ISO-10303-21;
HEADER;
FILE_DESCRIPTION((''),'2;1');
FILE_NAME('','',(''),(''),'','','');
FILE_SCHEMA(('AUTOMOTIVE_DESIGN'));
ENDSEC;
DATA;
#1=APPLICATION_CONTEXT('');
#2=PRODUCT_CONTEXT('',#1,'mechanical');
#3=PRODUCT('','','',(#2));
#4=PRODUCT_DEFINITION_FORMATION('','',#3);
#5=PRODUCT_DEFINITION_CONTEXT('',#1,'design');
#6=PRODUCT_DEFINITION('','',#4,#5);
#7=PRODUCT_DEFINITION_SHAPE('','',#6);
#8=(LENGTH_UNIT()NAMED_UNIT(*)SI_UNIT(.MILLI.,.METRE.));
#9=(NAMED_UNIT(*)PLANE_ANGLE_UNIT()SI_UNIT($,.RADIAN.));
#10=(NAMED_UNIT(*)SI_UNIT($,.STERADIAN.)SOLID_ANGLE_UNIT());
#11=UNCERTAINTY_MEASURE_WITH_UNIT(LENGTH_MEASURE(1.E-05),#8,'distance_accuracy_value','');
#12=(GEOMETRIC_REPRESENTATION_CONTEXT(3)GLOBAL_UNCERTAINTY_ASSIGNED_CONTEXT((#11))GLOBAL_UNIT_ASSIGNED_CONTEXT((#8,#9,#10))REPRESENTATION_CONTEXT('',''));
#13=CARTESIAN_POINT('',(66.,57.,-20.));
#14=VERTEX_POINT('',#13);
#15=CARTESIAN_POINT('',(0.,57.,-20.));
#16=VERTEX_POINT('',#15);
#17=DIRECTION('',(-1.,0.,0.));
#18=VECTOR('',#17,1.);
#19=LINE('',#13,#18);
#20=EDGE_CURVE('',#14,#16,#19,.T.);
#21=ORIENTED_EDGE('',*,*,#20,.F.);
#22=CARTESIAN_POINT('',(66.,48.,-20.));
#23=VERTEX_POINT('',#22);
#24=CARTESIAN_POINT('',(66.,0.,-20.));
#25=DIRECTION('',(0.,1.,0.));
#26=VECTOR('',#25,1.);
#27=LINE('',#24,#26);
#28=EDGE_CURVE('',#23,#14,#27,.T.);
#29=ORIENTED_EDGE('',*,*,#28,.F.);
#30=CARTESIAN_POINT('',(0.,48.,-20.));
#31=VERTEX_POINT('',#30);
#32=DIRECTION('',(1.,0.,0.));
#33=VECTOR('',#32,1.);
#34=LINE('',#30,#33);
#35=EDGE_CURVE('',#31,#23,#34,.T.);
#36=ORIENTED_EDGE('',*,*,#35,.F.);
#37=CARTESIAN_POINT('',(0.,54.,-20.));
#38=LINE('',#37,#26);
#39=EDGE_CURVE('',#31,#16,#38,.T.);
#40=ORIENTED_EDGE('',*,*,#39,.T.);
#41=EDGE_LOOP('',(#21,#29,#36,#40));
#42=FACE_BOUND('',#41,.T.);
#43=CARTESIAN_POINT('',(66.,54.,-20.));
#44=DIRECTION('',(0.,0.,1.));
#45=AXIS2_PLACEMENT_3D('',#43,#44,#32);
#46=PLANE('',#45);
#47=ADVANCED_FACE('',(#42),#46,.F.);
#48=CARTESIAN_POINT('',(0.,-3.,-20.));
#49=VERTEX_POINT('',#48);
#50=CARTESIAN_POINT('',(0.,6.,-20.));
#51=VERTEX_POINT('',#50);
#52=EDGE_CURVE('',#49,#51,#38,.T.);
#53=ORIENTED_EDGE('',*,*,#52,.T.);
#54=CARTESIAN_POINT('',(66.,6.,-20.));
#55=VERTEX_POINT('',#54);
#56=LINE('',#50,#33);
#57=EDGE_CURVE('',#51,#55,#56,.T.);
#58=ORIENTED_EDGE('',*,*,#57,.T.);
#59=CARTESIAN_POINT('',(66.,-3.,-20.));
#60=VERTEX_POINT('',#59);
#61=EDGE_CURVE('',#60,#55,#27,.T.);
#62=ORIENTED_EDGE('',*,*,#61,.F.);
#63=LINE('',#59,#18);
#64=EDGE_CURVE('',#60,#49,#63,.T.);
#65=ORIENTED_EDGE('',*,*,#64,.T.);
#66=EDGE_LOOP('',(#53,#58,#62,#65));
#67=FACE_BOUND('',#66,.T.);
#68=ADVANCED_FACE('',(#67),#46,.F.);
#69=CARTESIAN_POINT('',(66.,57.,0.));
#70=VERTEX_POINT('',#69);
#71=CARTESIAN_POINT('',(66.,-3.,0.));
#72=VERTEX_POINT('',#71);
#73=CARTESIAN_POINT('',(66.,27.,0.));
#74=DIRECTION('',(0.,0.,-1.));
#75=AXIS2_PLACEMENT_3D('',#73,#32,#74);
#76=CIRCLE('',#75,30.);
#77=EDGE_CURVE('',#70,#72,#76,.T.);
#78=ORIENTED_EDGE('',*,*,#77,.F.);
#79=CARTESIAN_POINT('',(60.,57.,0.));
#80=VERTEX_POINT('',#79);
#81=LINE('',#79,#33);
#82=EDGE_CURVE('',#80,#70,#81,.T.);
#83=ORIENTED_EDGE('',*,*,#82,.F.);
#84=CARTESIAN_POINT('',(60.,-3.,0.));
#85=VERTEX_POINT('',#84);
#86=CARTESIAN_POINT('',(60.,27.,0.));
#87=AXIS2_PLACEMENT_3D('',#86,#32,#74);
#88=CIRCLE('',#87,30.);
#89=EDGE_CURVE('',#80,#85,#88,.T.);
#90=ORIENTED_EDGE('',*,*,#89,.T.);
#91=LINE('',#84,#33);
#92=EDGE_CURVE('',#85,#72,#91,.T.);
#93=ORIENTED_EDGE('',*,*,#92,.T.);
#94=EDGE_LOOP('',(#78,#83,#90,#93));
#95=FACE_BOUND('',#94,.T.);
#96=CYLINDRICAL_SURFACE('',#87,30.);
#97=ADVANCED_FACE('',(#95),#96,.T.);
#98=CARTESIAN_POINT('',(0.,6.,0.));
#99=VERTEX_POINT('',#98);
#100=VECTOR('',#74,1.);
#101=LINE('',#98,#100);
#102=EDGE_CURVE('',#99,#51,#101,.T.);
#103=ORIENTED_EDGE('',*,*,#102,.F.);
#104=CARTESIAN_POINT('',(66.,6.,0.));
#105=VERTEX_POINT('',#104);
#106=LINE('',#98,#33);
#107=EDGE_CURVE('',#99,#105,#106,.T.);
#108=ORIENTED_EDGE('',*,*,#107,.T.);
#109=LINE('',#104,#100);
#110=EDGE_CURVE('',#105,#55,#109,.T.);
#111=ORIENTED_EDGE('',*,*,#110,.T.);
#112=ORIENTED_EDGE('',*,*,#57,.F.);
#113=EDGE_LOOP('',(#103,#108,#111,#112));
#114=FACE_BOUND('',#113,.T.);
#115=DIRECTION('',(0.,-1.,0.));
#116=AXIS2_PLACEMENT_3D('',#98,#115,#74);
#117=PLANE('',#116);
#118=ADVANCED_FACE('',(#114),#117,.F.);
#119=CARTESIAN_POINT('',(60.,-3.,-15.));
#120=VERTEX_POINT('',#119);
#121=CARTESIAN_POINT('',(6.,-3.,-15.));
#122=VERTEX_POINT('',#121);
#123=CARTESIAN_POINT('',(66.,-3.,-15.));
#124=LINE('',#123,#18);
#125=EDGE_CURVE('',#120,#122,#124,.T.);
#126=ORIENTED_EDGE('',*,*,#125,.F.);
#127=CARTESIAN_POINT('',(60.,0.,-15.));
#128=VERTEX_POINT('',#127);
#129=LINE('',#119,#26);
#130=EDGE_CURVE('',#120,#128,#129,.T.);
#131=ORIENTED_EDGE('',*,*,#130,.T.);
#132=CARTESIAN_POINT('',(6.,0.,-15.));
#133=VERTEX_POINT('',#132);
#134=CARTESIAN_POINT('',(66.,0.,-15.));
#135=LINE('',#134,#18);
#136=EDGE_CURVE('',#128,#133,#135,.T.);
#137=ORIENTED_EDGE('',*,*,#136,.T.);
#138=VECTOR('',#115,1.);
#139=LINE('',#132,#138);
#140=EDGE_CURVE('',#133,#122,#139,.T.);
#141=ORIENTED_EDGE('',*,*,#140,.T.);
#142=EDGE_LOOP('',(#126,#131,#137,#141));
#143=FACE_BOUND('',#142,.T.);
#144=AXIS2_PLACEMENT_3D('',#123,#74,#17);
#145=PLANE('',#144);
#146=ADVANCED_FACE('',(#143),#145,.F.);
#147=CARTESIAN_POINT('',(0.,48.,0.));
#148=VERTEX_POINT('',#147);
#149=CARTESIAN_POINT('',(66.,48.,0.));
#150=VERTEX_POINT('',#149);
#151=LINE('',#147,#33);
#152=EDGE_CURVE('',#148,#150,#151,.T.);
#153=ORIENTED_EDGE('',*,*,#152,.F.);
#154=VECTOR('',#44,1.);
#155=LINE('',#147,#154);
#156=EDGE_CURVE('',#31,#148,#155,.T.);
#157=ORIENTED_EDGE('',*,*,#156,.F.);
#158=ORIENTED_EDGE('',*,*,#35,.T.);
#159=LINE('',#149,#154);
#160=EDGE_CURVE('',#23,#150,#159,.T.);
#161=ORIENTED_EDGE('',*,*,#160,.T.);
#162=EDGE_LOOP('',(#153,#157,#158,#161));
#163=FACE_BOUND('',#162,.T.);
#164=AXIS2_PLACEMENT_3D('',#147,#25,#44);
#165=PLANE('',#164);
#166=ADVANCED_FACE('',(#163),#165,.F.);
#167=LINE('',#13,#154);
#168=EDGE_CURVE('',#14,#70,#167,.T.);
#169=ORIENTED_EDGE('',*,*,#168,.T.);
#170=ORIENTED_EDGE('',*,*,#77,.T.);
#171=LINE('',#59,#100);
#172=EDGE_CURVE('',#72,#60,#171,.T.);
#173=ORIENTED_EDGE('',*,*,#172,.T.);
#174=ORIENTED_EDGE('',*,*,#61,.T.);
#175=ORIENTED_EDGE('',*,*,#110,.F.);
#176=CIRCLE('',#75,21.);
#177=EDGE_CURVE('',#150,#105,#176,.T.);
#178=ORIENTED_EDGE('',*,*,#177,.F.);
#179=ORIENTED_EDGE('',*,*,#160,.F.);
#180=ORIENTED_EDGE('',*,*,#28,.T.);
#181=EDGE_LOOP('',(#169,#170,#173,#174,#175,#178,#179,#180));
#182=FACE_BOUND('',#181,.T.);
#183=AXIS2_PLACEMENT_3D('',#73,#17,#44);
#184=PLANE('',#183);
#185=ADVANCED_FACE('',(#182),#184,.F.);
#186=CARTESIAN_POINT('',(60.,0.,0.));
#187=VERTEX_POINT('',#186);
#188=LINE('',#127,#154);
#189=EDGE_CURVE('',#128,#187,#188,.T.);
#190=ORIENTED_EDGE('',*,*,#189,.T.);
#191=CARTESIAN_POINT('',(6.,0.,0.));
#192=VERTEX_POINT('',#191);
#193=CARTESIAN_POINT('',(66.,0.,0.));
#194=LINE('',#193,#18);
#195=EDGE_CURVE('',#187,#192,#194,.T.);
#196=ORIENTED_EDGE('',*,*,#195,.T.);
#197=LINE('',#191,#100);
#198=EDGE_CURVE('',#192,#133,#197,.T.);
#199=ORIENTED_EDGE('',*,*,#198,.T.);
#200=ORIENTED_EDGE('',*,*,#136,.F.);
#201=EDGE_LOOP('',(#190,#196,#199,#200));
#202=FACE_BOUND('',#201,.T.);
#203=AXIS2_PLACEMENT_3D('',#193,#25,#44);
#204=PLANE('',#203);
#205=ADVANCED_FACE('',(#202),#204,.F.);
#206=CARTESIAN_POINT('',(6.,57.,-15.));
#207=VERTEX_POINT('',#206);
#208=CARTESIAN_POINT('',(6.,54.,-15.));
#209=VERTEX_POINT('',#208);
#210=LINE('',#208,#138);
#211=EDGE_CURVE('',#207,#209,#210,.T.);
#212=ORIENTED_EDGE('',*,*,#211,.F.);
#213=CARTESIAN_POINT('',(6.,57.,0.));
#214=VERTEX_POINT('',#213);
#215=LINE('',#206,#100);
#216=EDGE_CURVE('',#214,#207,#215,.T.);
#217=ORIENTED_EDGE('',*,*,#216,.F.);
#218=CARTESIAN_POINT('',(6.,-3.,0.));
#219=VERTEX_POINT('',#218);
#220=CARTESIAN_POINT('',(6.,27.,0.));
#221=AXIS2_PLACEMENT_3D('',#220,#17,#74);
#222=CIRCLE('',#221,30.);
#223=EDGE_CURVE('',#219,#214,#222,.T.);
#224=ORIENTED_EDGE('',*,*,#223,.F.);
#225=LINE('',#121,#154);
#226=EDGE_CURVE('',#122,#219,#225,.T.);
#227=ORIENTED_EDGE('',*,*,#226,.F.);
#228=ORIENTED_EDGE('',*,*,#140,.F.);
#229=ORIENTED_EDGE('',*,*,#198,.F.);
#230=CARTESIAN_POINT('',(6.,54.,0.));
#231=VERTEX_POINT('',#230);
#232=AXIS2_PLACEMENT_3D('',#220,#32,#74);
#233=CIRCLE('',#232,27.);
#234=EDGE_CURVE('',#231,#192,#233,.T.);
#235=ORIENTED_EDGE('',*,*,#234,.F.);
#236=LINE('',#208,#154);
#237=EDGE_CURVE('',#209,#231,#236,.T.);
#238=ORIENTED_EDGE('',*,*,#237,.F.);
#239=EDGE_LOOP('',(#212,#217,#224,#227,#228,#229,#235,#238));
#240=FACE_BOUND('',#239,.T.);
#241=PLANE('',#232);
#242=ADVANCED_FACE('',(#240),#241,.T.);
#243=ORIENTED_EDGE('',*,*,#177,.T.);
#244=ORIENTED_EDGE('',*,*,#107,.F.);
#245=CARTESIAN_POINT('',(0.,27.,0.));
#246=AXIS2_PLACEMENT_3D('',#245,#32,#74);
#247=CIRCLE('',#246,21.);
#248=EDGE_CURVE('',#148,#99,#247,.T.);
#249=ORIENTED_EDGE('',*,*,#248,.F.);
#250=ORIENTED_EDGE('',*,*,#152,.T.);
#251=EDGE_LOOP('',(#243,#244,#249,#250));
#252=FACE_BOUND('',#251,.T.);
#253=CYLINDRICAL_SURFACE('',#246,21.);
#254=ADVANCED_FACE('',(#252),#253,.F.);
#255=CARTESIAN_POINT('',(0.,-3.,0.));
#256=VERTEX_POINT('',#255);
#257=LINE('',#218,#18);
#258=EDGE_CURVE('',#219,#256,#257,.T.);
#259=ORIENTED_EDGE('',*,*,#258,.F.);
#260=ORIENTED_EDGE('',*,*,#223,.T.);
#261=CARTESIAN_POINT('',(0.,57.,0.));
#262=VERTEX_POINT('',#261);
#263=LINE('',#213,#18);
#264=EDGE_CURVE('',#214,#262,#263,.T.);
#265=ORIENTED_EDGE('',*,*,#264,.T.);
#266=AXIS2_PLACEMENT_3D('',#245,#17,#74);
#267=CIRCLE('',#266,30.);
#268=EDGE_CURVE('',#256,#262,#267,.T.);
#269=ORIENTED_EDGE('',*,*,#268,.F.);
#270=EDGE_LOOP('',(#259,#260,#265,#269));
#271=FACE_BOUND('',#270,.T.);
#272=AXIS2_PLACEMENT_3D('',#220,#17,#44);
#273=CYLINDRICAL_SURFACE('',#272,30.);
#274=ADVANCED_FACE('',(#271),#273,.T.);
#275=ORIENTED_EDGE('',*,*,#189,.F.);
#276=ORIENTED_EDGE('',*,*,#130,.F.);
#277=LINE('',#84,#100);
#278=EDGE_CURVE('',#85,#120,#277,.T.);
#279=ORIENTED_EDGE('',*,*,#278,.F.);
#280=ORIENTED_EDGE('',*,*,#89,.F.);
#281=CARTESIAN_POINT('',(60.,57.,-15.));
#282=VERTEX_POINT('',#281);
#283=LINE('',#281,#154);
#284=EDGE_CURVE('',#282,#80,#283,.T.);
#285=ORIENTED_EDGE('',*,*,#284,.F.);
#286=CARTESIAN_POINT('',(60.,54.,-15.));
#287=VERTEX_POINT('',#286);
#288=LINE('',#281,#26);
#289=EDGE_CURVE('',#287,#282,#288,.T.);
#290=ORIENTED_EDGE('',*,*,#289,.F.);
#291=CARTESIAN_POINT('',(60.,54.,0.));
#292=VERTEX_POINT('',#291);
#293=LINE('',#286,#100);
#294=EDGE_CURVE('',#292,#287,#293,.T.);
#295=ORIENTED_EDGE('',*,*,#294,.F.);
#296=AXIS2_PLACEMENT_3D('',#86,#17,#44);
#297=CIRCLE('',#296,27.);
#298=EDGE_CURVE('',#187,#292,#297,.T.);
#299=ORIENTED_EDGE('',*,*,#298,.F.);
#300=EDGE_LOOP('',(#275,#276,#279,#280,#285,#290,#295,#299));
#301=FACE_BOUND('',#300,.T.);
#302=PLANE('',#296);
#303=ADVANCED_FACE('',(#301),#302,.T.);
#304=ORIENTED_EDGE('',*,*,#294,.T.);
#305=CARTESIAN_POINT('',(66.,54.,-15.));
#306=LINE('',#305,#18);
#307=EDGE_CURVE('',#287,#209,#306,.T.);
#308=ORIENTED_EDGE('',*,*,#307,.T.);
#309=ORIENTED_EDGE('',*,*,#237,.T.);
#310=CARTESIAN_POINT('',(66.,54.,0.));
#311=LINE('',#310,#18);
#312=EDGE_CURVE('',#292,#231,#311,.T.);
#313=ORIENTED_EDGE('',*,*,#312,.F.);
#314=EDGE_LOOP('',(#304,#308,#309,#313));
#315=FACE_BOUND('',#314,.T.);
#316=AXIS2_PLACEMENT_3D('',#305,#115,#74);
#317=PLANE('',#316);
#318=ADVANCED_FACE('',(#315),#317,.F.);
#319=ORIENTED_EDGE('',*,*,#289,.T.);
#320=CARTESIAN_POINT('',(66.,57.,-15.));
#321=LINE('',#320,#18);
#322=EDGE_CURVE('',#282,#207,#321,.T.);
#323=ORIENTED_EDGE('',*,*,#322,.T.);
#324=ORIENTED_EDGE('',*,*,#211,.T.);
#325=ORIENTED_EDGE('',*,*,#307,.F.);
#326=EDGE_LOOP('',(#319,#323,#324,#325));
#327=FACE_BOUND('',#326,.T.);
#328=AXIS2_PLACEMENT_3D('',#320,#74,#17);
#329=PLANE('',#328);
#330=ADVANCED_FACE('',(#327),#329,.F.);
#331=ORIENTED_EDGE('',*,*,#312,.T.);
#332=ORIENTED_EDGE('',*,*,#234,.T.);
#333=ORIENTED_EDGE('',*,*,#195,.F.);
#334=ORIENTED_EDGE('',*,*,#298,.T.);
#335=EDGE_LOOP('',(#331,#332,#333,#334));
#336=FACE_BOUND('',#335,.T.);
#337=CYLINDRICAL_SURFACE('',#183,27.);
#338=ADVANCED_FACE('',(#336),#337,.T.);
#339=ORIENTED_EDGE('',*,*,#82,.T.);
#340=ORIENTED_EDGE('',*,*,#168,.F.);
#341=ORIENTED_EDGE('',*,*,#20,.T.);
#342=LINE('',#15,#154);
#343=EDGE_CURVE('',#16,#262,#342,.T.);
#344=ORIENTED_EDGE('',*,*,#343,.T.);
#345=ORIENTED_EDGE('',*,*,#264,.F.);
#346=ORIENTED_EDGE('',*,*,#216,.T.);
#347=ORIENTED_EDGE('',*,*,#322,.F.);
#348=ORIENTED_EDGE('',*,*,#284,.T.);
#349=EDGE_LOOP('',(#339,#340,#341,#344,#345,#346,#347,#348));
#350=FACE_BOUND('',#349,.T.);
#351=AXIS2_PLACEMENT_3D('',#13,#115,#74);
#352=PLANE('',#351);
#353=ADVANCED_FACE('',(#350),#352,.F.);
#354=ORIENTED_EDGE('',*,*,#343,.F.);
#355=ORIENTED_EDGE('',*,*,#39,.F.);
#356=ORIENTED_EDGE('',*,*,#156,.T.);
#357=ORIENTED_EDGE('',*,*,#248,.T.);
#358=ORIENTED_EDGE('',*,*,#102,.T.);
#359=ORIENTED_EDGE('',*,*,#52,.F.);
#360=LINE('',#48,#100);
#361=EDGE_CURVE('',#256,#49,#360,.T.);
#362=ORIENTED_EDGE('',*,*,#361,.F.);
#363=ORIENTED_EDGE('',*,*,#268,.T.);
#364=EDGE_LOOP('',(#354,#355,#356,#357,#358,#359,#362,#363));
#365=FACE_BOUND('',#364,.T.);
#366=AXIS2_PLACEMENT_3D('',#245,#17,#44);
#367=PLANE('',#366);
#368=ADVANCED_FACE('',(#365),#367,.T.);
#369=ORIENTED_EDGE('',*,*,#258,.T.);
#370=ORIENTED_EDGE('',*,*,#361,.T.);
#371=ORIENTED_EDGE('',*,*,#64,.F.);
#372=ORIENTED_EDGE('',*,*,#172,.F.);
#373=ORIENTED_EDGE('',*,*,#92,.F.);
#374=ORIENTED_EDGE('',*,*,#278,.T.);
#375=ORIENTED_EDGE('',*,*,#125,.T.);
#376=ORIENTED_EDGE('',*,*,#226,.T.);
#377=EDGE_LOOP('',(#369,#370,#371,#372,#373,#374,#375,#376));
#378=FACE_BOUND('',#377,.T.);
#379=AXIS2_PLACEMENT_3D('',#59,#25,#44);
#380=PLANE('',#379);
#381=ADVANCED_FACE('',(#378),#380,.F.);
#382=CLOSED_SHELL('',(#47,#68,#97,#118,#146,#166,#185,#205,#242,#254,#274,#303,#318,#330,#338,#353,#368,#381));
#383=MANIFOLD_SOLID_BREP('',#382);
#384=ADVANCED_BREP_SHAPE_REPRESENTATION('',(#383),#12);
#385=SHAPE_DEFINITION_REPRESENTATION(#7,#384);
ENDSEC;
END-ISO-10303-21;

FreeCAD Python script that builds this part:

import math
import FreeCAD as App
import Part
import Sketcher
Q = App.Units.Quantity

doc = App.newDocument("Part")
body = doc.addObject("PartDesign::Body", "Body")

# Sketch on YZ plane
sketch1 = body.newObject("Sketcher::SketchObject", "Sketch")
sketch1.AttachmentSupport = (doc.getObject("YZ_Plane"), [""])
sketch1.MapMode = "FlatFace"
sketch1.addGeometry(Part.LineSegment(App.Vector(0, 0, 0), App.Vector(0, -15, 0)), False)
sketch1.addGeometry(Part.LineSegment(App.Vector(0, -15, 0), App.Vector(-3, -15, 0)), False)
sketch1.addGeometry(Part.LineSegment(App.Vector(-3, -15, 0), App.Vector(-3, -20, 0)), False)
sketch1.addGeometry(Part.LineSegment(App.Vector(-3, -20, 0), App.Vector(57, -20, 0)), False)
sketch1.addGeometry(Part.LineSegment(App.Vector(57, -20, 0), App.Vector(57, -15, 0)), False)
sketch1.addGeometry(Part.LineSegment(App.Vector(57, -15, 0), App.Vector(54, -15, 0)), False)
sketch1.addGeometry(Part.LineSegment(App.Vector(54, -15, 0), App.Vector(54, 0, 0)), False)
sketch1.addGeometry(Part.ArcOfCircle(Part.Circle(App.Vector(27, 0, 0), App.Vector(0, 0, 1), 27), math.radians(0), math.radians(180)), False)
sketch1.addConstraint(Sketcher.Constraint("Coincident", 0, 2, 1, 1))
sketch1.addConstraint(Sketcher.Constraint("Coincident", 1, 2, 2, 1))
sketch1.addConstraint(Sketcher.Constraint("Coincident", 2, 2, 3, 1))
sketch1.addConstraint(Sketcher.Constraint("Coincident", 3, 2, 4, 1))
sketch1.addConstraint(Sketcher.Constraint("Coincident", 4, 2, 5, 1))
sketch1.addConstraint(Sketcher.Constraint("Coincident", 5, 2, 6, 1))
sketch1.addConstraint(Sketcher.Constraint("Tangent", 6, 2, 7, 1))
sketch1.addConstraint(Sketcher.Constraint("Tangent", 7, 2, 0, 1))
sketch1.addConstraint(Sketcher.Constraint("Vertical", 0))
sketch1.addConstraint(Sketcher.Constraint("Horizontal", 1))
sketch1.addConstraint(Sketcher.Constraint("Vertical", 2))
sketch1.addConstraint(Sketcher.Constraint("Horizontal", 3))
sketch1.addConstraint(Sketcher.Constraint("Vertical", 4))
sketch1.addConstraint(Sketcher.Constraint("Horizontal", 5))
sketch1.addConstraint(Sketcher.Constraint("Vertical", 6))
sketch1.addConstraint(Sketcher.Constraint("Coincident", 7, 2, -1, 1))
sketch1.addConstraint(Sketcher.Constraint("Horizontal", 1, 2, 4, 2))
sketch1.addConstraint(Sketcher.Constraint("Equal", 1, 5))
sketch1.addConstraint(Sketcher.Constraint("Radius", 7, Q("27 mm")))
sketch1.addConstraint(Sketcher.Constraint("DistanceX", 1, 2, 1, 1, Q("3 mm")))
sketch1.addConstraint(Sketcher.Constraint("DistanceY", 0, 2, 0, 1, Q("15 mm")))
sketch1.addConstraint(Sketcher.Constraint("DistanceY", 2, 2, 2, 1, Q("5 mm")))
pad1 = body.newObject("PartDesign::Pad", "Pad")
pad1.Profile = sketch1
pad1.Length = 66

# Sketch on YZ plane
sketch2 = body.newObject("Sketcher::SketchObject", "Sketch001")
sketch2.AttachmentSupport = (doc.getObject("YZ_Plane"), [""])
sketch2.MapMode = "FlatFace"
sketch2.AttachmentOffset = App.Placement(App.Vector(0, 0, 66), App.Rotation())
sketch2.addGeometry(Part.LineSegment(App.Vector(6, 0, 0), App.Vector(6, -20, 0)), False)
sketch2.addGeometry(Part.LineSegment(App.Vector(6, -20, 0), App.Vector(48, -20, 0)), False)
sketch2.addGeometry(Part.LineSegment(App.Vector(48, -20, 0), App.Vector(48, 0, 0)), False)
sketch2.addGeometry(Part.ArcOfCircle(Part.Circle(App.Vector(27, 0, 0), App.Vector(0, 0, 1), 21), math.radians(0), math.radians(180)), False)
sketch2.addConstraint(Sketcher.Constraint("Coincident", 0, 2, 1, 1))
sketch2.addConstraint(Sketcher.Constraint("Coincident", 1, 2, 2, 1))
sketch2.addConstraint(Sketcher.Constraint("Tangent", 2, 2, 3, 1))
sketch2.addConstraint(Sketcher.Constraint("Tangent", 3, 2, 0, 1))
sketch2.addConstraint(Sketcher.Constraint("Vertical", 0))
sketch2.addConstraint(Sketcher.Constraint("Horizontal", 1))
sketch2.addConstraint(Sketcher.Constraint("Vertical", 2))
sketch2.addConstraint(Sketcher.Constraint("PointOnObject", 3, 3, -1))
sketch2.addConstraint(Sketcher.Constraint("Radius", 3, Q("21 mm")))
sketch2.addConstraint(Sketcher.Constraint("DistanceY", 0, 2, 0, 1, Q("20 mm")))
sketch2.addConstraint(Sketcher.Constraint("DistanceX", -1, 1, 3, 3, Q("27 mm")))
pocket1 = body.newObject("PartDesign::Pocket", "Pocket")
pocket1.Profile = sketch2
pocket1.Type = "ThroughAll"

# Sketch on YZ plane
sketch3 = body.newObject("Sketcher::SketchObject", "Sketch002")
sketch3.AttachmentSupport = (doc.getObject("YZ_Plane"), [""])
sketch3.MapMode = "FlatFace"
sketch3.AttachmentOffset = App.Placement(App.Vector(0, 0, 60), App.Rotation())
sketch3.addGeometry(Part.LineSegment(App.Vector(-3, -15, 0), App.Vector(0, -15, 0)), False)
sketch3.addGeometry(Part.LineSegment(App.Vector(0, -15, 0), App.Vector(0, 0, 0)), False)
sketch3.addGeometry(Part.ArcOfCircle(Part.Circle(App.Vector(27, 0, 0), App.Vector(0, 0, 1), 27), math.radians(0), math.radians(180)), False)
sketch3.addGeometry(Part.LineSegment(App.Vector(54, 0, 0), App.Vector(54, -15, 0)), False)
sketch3.addGeometry(Part.LineSegment(App.Vector(54, -15, 0), App.Vector(57, -15, 0)), False)
sketch3.addGeometry(Part.LineSegment(App.Vector(57, -15, 0), App.Vector(57, 0, 0)), False)
sketch3.addGeometry(Part.ArcOfCircle(Part.Circle(App.Vector(27, 0, 0), App.Vector(0, 0, 1), 30), math.radians(0), math.radians(180)), False)
sketch3.addGeometry(Part.LineSegment(App.Vector(-3, 0, 0), App.Vector(-3, -15, 0)), False)
sketch3.addConstraint(Sketcher.Constraint("Coincident", 0, 2, 1, 1))
sketch3.addConstraint(Sketcher.Constraint("Tangent", 1, 2, 2, 2))
sketch3.addConstraint(Sketcher.Constraint("Tangent", 2, 1, 3, 1))
sketch3.addConstraint(Sketcher.Constraint("Coincident", 3, 2, 4, 1))
sketch3.addConstraint(Sketcher.Constraint("Coincident", 4, 2, 5, 1))
sketch3.addConstraint(Sketcher.Constraint("Tangent", 5, 2, 6, 1))
sketch3.addConstraint(Sketcher.Constraint("Tangent", 6, 2, 7, 1))
sketch3.addConstraint(Sketcher.Constraint("Coincident", 7, 2, 0, 1))
sketch3.addConstraint(Sketcher.Constraint("Horizontal", 0))
sketch3.addConstraint(Sketcher.Constraint("Vertical", 1))
sketch3.addConstraint(Sketcher.Constraint("Vertical", 3))
sketch3.addConstraint(Sketcher.Constraint("Horizontal", 4))
sketch3.addConstraint(Sketcher.Constraint("Vertical", 5))
sketch3.addConstraint(Sketcher.Constraint("Vertical", 7))
sketch3.addConstraint(Sketcher.Constraint("Coincident", 1, 2, -1, 1))
sketch3.addConstraint(Sketcher.Constraint("Coincident", 6, 3, 2, 3))
sketch3.addConstraint(Sketcher.Constraint("Horizontal", 0, 2, 3, 2))
sketch3.addConstraint(Sketcher.Constraint("Radius", 2, Q("27 mm")))
sketch3.addConstraint(Sketcher.Constraint("Radius", 6, Q("30 mm")))
sketch3.addConstraint(Sketcher.Constraint("DistanceY", 1, 1, 1, 2, Q("15 mm")))
pad2 = body.newObject("PartDesign::Pad", "Pad001")
pad2.Profile = sketch3
pad2.Length = 6

# Sketch on YZ plane
sketch4 = body.newObject("Sketcher::SketchObject", "Sketch003")
sketch4.AttachmentSupport = (doc.getObject("YZ_Plane"), [""])
sketch4.MapMode = "FlatFace"
sketch4.addGeometry(Part.LineSegment(App.Vector(57, -15, 0), App.Vector(54, -15, 0)), False)
sketch4.addGeometry(Part.LineSegment(App.Vector(54, -15, 0), App.Vector(54, 0, 0)), False)
sketch4.addGeometry(Part.ArcOfCircle(Part.Circle(App.Vector(27, 0, 0), App.Vector(0, 0, 1), 27), math.radians(0), math.radians(180)), False)
sketch4.addGeometry(Part.LineSegment(App.Vector(0, 0, 0), App.Vector(0, -15, 0)), False)
sketch4.addGeometry(Part.LineSegment(App.Vector(0, -15, 0), App.Vector(-3, -15, 0)), False)
sketch4.addGeometry(Part.LineSegment(App.Vector(-3, -15, 0), App.Vector(-3, 0, 0)), False)
sketch4.addGeometry(Part.ArcOfCircle(Part.Circle(App.Vector(27, 0, 0), App.Vector(0, 0, 1), 30), math.radians(0), math.radians(180)), False)
sketch4.addGeometry(Part.LineSegment(App.Vector(57, 0, 0), App.Vector(57, -15, 0)), False)
sketch4.addConstraint(Sketcher.Constraint("Coincident", 0, 2, 1, 1))
sketch4.addConstraint(Sketcher.Constraint("Tangent", 1, 2, 2, 1))
sketch4.addConstraint(Sketcher.Constraint("Tangent", 2, 2, 3, 1))
sketch4.addConstraint(Sketcher.Constraint("Coincident", 3, 2, 4, 1))
sketch4.addConstraint(Sketcher.Constraint("Coincident", 4, 2, 5, 1))
sketch4.addConstraint(Sketcher.Constraint("Tangent", 5, 2, 6, 2))
sketch4.addConstraint(Sketcher.Constraint("Tangent", 6, 1, 7, 1))
sketch4.addConstraint(Sketcher.Constraint("Coincident", 7, 2, 0, 1))
sketch4.addConstraint(Sketcher.Constraint("Horizontal", 0))
sketch4.addConstraint(Sketcher.Constraint("Vertical", 1))
sketch4.addConstraint(Sketcher.Constraint("Vertical", 3))
sketch4.addConstraint(Sketcher.Constraint("Horizontal", 4))
sketch4.addConstraint(Sketcher.Constraint("Vertical", 5))
sketch4.addConstraint(Sketcher.Constraint("Vertical", 7))
sketch4.addConstraint(Sketcher.Constraint("Coincident", 2, 2, -1, 1))
sketch4.addConstraint(Sketcher.Constraint("Coincident", 6, 3, 2, 3))
sketch4.addConstraint(Sketcher.Constraint("Horizontal", 0, 2, 3, 2))
sketch4.addConstraint(Sketcher.Constraint("Radius", 2, Q("27 mm")))
sketch4.addConstraint(Sketcher.Constraint("Radius", 6, Q("30 mm")))
sketch4.addConstraint(Sketcher.Constraint("DistanceY", 1, 1, 1, 2, Q("15 mm")))
pad3 = body.newObject("PartDesign::Pad", "Pad002")
pad3.Profile = sketch4
pad3.Length = 6

doc.recompute()
